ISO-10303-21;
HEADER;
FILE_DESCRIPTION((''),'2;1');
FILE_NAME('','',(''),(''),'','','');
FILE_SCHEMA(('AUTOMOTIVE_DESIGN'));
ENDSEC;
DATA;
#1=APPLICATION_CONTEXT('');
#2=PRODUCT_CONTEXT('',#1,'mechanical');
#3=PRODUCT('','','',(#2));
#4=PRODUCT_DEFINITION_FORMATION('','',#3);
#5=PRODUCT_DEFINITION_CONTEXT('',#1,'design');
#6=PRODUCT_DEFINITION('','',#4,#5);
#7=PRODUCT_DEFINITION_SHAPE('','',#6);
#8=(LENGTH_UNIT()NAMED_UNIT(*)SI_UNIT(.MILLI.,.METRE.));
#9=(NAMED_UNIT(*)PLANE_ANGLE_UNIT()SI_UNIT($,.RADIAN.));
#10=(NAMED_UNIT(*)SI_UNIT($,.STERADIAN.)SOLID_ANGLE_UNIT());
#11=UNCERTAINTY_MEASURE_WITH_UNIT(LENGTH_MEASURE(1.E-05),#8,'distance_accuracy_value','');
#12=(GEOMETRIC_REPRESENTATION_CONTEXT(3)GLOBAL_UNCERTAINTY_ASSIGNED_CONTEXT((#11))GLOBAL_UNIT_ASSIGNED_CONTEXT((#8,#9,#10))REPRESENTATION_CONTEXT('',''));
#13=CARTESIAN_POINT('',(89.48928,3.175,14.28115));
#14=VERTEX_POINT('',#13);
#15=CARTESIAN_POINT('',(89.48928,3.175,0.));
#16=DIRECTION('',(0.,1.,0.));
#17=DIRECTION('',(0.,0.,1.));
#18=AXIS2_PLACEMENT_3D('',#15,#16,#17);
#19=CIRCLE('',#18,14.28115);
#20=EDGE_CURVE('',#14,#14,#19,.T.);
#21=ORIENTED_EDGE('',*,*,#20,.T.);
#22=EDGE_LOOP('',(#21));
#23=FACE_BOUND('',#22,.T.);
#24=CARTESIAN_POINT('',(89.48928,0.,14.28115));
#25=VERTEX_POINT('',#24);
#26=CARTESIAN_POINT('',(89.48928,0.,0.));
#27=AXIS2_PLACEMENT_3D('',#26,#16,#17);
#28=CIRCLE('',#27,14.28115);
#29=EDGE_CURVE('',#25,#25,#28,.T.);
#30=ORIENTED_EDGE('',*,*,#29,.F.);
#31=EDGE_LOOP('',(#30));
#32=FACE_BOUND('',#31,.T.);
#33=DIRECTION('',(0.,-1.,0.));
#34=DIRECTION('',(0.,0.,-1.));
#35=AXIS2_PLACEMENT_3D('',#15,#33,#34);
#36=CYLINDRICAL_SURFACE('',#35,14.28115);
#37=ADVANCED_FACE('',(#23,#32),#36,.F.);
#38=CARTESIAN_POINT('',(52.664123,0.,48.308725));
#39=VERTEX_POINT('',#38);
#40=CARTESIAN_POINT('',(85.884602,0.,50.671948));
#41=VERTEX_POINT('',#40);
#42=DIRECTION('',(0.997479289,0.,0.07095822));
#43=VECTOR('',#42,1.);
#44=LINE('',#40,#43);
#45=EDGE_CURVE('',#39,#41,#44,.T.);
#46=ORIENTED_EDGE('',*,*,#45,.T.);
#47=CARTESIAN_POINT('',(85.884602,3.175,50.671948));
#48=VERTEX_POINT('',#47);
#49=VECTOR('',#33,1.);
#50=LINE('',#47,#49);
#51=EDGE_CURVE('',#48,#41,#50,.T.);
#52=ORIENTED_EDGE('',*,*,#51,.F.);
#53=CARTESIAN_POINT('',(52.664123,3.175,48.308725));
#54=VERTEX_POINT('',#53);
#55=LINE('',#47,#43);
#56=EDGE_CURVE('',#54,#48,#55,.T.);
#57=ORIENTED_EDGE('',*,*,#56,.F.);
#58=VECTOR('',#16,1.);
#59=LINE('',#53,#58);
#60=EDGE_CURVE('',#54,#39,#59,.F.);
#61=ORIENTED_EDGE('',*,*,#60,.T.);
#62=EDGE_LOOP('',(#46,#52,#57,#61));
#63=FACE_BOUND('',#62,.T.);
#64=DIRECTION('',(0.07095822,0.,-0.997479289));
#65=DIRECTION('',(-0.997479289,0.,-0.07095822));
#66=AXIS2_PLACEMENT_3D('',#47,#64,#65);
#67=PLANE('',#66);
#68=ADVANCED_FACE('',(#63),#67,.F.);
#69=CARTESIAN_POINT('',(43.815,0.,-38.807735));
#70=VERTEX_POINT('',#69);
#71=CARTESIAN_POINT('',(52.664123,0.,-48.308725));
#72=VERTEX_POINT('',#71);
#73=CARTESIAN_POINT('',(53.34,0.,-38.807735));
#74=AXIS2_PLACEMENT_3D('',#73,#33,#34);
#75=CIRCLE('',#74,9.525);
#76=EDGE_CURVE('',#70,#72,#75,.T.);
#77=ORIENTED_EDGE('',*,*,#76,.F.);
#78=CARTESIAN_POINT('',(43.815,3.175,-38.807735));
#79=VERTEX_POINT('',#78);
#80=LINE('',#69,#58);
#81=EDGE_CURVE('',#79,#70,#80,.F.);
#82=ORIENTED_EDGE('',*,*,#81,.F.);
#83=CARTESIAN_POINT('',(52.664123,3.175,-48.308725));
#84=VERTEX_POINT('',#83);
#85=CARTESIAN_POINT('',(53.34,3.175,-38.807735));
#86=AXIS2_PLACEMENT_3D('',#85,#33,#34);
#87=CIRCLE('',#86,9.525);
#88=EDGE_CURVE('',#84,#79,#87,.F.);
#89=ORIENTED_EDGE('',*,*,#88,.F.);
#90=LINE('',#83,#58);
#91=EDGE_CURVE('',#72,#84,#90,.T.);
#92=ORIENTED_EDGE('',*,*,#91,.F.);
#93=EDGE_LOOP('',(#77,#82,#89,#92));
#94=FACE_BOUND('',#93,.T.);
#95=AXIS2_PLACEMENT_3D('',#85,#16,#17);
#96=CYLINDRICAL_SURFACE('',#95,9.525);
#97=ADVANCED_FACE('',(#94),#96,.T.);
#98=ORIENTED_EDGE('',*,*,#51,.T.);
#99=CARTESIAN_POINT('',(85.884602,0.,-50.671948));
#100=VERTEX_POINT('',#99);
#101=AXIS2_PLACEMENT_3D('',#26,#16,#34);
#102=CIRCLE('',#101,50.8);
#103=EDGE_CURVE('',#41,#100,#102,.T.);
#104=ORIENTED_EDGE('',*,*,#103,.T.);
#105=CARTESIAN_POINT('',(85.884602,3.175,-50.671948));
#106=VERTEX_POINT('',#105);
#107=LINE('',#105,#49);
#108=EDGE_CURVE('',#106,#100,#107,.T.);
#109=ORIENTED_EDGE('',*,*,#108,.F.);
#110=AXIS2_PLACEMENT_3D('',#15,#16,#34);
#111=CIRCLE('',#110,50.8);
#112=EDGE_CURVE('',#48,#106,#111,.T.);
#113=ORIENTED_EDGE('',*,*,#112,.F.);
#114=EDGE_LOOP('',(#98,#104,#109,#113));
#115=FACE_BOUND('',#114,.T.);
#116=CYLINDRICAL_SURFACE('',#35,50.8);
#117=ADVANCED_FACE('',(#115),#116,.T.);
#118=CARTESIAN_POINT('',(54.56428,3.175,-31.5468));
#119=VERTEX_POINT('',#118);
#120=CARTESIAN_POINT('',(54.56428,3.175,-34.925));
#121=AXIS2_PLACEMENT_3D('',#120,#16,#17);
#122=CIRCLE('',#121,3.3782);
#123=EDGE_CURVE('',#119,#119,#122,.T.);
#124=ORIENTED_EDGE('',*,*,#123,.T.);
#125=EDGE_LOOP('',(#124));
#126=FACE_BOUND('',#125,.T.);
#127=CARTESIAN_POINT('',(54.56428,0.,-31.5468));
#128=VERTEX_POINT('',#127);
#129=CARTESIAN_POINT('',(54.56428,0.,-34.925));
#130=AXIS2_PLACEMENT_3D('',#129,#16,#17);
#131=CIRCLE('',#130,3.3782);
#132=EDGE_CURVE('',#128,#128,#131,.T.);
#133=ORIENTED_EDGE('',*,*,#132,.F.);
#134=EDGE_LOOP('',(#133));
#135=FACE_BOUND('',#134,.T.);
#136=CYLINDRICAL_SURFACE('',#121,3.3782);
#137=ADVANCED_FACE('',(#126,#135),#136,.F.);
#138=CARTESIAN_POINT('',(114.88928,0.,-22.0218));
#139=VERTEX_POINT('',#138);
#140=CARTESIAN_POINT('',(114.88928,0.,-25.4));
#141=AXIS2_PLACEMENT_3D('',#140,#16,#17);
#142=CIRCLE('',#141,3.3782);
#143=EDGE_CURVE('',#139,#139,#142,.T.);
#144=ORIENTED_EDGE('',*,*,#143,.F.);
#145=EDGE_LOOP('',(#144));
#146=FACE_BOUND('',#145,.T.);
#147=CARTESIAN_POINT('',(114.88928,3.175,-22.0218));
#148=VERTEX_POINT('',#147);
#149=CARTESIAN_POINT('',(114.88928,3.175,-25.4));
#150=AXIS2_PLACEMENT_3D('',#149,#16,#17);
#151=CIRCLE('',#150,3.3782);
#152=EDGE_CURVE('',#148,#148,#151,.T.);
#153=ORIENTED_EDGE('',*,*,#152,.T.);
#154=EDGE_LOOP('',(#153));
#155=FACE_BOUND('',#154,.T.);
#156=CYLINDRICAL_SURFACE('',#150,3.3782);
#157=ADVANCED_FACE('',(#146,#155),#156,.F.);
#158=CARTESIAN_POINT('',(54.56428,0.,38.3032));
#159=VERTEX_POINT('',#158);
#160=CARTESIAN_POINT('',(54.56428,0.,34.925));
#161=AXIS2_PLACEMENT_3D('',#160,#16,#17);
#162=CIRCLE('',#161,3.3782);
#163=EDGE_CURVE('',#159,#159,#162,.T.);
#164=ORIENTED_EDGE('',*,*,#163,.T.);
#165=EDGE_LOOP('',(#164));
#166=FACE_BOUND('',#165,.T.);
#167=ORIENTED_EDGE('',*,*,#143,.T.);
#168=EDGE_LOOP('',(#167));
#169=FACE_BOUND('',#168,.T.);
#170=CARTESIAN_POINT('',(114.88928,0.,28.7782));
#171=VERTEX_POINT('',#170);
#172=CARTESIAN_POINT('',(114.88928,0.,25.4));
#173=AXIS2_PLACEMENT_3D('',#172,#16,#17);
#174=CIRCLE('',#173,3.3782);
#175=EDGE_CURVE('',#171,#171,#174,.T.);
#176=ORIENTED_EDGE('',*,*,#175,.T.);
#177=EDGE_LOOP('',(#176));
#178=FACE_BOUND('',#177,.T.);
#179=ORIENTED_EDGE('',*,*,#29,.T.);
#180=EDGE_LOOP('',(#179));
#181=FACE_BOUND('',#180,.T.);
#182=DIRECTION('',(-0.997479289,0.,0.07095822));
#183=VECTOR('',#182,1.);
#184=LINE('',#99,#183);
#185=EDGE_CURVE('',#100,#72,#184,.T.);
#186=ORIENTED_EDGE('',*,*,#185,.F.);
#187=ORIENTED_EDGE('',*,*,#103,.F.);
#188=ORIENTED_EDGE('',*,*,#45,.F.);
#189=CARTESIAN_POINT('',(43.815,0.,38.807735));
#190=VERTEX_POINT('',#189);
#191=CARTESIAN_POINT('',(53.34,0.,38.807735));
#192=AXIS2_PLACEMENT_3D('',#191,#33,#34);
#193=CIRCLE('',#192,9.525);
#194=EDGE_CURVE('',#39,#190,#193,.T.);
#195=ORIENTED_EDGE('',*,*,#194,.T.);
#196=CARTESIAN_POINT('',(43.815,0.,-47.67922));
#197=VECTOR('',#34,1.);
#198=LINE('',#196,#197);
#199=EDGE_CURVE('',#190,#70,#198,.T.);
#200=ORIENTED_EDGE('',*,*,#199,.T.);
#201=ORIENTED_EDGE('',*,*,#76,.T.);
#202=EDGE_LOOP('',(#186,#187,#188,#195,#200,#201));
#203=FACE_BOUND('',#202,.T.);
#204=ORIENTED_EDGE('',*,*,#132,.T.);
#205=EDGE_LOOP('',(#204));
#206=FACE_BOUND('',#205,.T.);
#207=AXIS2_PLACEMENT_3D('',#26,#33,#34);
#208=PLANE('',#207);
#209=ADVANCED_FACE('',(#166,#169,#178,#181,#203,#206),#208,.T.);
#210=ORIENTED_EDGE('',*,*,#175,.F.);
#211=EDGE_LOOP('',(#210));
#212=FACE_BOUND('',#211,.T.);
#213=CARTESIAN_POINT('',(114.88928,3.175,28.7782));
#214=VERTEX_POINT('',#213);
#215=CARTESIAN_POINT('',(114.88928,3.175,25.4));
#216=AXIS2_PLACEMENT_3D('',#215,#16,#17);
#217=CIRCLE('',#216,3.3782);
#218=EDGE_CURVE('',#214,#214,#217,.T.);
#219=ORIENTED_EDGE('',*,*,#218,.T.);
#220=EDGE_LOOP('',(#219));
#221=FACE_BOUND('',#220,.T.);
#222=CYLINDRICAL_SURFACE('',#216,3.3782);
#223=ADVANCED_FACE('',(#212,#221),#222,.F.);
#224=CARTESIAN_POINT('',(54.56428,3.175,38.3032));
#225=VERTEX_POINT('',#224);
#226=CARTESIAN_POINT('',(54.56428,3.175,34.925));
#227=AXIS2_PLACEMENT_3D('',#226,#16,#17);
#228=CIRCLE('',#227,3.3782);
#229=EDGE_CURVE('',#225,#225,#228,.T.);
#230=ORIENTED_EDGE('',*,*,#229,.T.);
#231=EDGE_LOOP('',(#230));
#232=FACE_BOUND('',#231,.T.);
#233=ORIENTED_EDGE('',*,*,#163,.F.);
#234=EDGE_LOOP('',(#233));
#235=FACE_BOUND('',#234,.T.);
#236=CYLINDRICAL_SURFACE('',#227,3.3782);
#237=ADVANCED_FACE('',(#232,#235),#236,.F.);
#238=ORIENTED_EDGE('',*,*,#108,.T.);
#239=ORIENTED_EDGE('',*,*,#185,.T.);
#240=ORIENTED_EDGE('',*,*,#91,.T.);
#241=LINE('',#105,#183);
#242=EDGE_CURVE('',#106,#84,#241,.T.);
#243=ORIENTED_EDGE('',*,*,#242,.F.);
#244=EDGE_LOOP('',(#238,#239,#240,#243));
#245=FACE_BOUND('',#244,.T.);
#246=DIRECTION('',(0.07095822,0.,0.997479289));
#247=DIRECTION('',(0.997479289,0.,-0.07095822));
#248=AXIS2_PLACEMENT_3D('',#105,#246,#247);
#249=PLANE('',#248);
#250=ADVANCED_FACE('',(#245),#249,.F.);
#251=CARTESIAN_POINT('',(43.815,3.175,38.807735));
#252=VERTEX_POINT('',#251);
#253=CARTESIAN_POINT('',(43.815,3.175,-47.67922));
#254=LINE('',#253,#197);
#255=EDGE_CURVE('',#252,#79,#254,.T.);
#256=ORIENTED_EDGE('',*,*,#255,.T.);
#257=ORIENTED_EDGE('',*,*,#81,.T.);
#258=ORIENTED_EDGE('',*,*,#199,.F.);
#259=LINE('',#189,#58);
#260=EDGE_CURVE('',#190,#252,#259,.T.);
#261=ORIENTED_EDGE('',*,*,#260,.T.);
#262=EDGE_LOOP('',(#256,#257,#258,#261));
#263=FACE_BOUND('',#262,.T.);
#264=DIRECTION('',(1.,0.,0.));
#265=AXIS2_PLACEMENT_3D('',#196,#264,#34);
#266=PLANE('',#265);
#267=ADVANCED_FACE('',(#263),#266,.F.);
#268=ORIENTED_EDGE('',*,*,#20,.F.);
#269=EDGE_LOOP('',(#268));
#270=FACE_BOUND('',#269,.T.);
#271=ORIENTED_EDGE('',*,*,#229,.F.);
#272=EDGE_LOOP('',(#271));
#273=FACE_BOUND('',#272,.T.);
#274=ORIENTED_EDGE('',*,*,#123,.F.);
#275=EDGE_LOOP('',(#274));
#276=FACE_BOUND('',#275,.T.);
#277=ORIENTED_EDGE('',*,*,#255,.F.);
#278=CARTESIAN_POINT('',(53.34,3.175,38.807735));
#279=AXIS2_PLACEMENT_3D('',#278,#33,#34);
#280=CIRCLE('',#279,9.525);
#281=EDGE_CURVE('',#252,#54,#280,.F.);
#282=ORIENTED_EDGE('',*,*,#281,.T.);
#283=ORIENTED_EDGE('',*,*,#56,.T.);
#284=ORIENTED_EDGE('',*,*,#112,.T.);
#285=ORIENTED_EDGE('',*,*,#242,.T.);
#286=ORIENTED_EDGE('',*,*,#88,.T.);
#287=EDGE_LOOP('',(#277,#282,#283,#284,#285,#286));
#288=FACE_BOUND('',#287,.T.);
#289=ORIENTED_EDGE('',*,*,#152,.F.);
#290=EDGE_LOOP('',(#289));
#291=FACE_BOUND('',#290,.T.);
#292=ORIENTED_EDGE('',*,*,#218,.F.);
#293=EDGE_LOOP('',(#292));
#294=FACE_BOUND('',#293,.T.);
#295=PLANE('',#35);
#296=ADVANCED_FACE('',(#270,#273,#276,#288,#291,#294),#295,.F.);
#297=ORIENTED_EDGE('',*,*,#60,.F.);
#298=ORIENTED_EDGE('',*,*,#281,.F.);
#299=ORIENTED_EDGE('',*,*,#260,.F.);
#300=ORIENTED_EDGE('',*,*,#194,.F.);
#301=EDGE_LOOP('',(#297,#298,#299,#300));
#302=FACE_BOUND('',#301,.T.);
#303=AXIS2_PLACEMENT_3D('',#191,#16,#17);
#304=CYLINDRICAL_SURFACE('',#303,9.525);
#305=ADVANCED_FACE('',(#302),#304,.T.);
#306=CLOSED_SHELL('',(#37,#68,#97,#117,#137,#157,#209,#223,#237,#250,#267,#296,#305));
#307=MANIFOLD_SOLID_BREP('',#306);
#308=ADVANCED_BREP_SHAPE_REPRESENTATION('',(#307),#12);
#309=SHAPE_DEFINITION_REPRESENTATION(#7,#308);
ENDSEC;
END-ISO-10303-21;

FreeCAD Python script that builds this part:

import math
import FreeCAD as App
import Part
import Sketcher

V = App.Vector
Q = App.Units.Quantity


def edges_at(feature, points):
    """Names of the edges that pass closest to the given points."""
    edges = feature.Shape.Edges
    near = lambda p: min(range(len(edges)), key=lambda i: edges[i].distToShape(Part.Vertex(*p))[0])
    return sorted({f"Edge{near(p) + 1}" for p in points})

doc = App.newDocument("Part")
params = doc.addObject("Spreadsheet::Sheet", "Params")
for row, (alias, value) in enumerate([
    ("sketch1_radius", "2 in"),
    ("sketch1_diameter", "1.51 in"),
    ("sketch1_radius2", "1.75 in"),
    ("pad1_length", "0.125 in"),
    ("sketch2_diameter", "0.201 in"),
    ("hole_diameter", "0.201 in"),
    ("sketch3_diameter", "0.266 in"),
    ("hole2_diameter", "0.266 in"),
    ("sketch4_radius", "0.2 in"),
    ("sketch4_diameter", "0.201 in"),
    ("sketch4_radius2", "0.755 in"),
    ("fillet_radius", "0.3 in"),
    ("fillet2_radius", "0.375 in"),
], start=1):
    params.set(f"A{row}", alias)
    params.set(f"B{row}", "=" + value)
    params.setAlias(f"B{row}", alias)

body = doc.addObject("PartDesign::Body", "Body")

sketch1 = body.newObject("Sketcher::SketchObject", "Sketch")
sketch1.AttachmentSupport = (doc.getObject("XZ_Plane"), [""])
sketch1.MapMode = "FlatFace"
sketch1.addGeometry(Part.LineSegment(V(86, -51, 0), V(-3, -44, 0)), False)
sketch1.addGeometry(Part.ArcOfCircle(Part.Circle(V(0, 0, 0), V(0, 0, 1), 44), math.radians(94), math.radians(266)), False)
sketch1.addGeometry(Part.LineSegment(V(-3, 44, 0), V(86, 51, 0)), False)
sketch1.addGeometry(Part.ArcOfCircle(Part.Circle(V(89, 0, 0), V(0, 0, 1), 51), math.radians(-94), math.radians(94)), False)
sketch1.addGeometry(Part.Circle(V(0, 0, 0), V(0, 0, 1), 19), False)
sketch1.addGeometry(Part.Circle(V(89, 0, 0), V(0, 0, 1), 14), False)
sketch1.addConstraint(Sketcher.Constraint("Tangent", 0, 2, 1, 2))
sketch1.addConstraint(Sketcher.Constraint("Tangent", 1, 1, 2, 1))
sketch1.addConstraint(Sketcher.Constraint("Tangent", 2, 2, 3, 2))
sketch1.addConstraint(Sketcher.Constraint("Tangent", 3, 1, 0, 1))
sketch1.addConstraint(Sketcher.Constraint("Coincident", 1, 3, -1, 1))
sketch1.addConstraint(Sketcher.Constraint("Coincident", 4, 3, -1, 1))
sketch1.addConstraint(Sketcher.Constraint("Coincident", 5, 3, 3, 3))
sketch1.addConstraint(Sketcher.Constraint("PointOnObject", 3, 3, -1))
sketch1.addConstraint(Sketcher.Constraint("Radius", 3, Q("2 in")))
sketch1.addConstraint(Sketcher.Constraint("Diameter", 4, Q("1.51 in")))
sketch1.addConstraint(Sketcher.Constraint("Radius", 1, Q("1.75 in")))
sketch1.addConstraint(Sketcher.Constraint("Diameter", 5, Q("1.1245 in")))
sketch1.addConstraint(Sketcher.Constraint("DistanceX", -1, 1, 3, 3, Q("3.5232 in")))
sketch1.setExpression("Constraints[8]", "Params.sketch1_radius")
sketch1.setExpression("Constraints[9]", "Params.sketch1_diameter")
sketch1.setExpression("Constraints[10]", "Params.sketch1_radius2")
pad1 = body.newObject("PartDesign::Pad", "Pad")
pad1.Profile = sketch1
pad1.setExpression("Length", "Params.pad1_length")
pad1.Reversed = True

sketch2 = body.newObject("Sketcher::SketchObject", "Sketch001")
sketch2.AttachmentSupport = (doc.getObject("XZ_Plane"), [""])
sketch2.MapMode = "FlatFace"
sketch2.AttachmentOffset = App.Placement(V(0, 0, -0.125 * 25.4), App.Rotation())
sketch2.addGeometry(Part.Circle(V(-18, -18, 0), V(0, 0, 1), 2.6), False)
sketch2.addGeometry(Part.Circle(V(18, -18, 0), V(0, 0, 1), 2.6), False)
sketch2.addGeometry(Part.Circle(V(18, 18, 0), V(0, 0, 1), 2.6), False)
sketch2.addGeometry(Part.Circle(V(-18, 18, 0), V(0, 0, 1), 2.6), False)
sketch2.addGeometry(Part.Circle(V(-31.8, 0, 0), V(0, 0, 1), 2.6), False)
sketch2.addGeometry(Part.Circle(V(34.9, -34.3, 0), V(0, 0, 1), 2.6), False)
sketch2.addGeometry(Part.Circle(V(34.9, 34.3, 0), V(0, 0, 1), 2.6), False)
sketch2.addConstraint(Sketcher.Constraint("Equal", 0, 1))
sketch2.addConstraint(Sketcher.Constraint("Equal", 1, 2))
sketch2.addConstraint(Sketcher.Constraint("Equal", 2, 3))
sketch2.addConstraint(Sketcher.Constraint("Equal", 3, 4))
sketch2.addConstraint(Sketcher.Constraint("Equal", 4, 5))
sketch2.addConstraint(Sketcher.Constraint("Equal", 5, 6))
sketch2.addConstraint(Sketcher.Constraint("Symmetric", 0, 3, 2, 3, -1, 1))
sketch2.addConstraint(Sketcher.Constraint("Symmetric", 1, 3, 3, 3, -1, 1))
sketch2.addConstraint(Sketcher.Constraint("Symmetric", 0, 3, 1, 3, -2))
sketch2.addConstraint(Sketcher.Constraint("Symmetric", 5, 3, 6, 3, -1))
sketch2.addConstraint(Sketcher.Constraint("PointOnObject", 4, 3, -1))
sketch2.addConstraint(Sketcher.Constraint("Diameter", 0, Q("0.201 in")))
sketch2.addConstraint(Sketcher.Constraint("DistanceX", -1, 1, 5, 3, Q("1.375 in")))
sketch2.addConstraint(Sketcher.Constraint("DistanceX", 4, 3, -1, 1, Q("1.2525 in")))
sketch2.addConstraint(Sketcher.Constraint("DistanceY", 5, 3, 1, 3, 16.354201))
sketch2.addConstraint(Sketcher.Constraint("DistanceX", 0, 3, -1, 1, 17.960512))
sketch2.addConstraint(Sketcher.Constraint("DistanceY", 0, 3, -1, 1, 17.960512))
sketch2.setExpression("Constraints[11]", "Params.sketch2_diameter")
doc.recompute()
hole = body.newObject("PartDesign::Hole", "Hole")
hole.Profile = sketch2
hole.ThreadType = "None"
hole.setExpression("Diameter", "Params.hole_diameter")
hole.DepthType = "ThroughAll"
hole.Reversed = True

sketch3 = body.newObject("Sketcher::SketchObject", "Sketch002")
sketch3.AttachmentSupport = (doc.getObject("XZ_Plane"), [""])
sketch3.MapMode = "FlatFace"
sketch3.AttachmentOffset = App.Placement(V(0, 0, -0.125 * 25.4), App.Rotation())
sketch3.addGeometry(Part.Circle(V(54.6, -34.9, 0), V(0, 0, 1), 3.4), False)
sketch3.addGeometry(Part.Circle(V(54.6, 34.9, 0), V(0, 0, 1), 3.4), False)
sketch3.addGeometry(Part.Circle(V(114.9, -25.4, 0), V(0, 0, 1), 3.4), False)
sketch3.addGeometry(Part.Circle(V(114.9, 25.4, 0), V(0, 0, 1), 3.4), False)
sketch3.addConstraint(Sketcher.Constraint("Equal", 0, 1))
sketch3.addConstraint(Sketcher.Constraint("Equal", 1, 2))
sketch3.addConstraint(Sketcher.Constraint("Equal", 2, 3))
sketch3.addConstraint(Sketcher.Constraint("Symmetric", 0, 3, 1, 3, -1))
sketch3.addConstraint(Sketcher.Constraint("Symmetric", 2, 3, 3, 3, -1))
sketch3.addConstraint(Sketcher.Constraint("Diameter", 0, Q("0.266 in")))
sketch3.addConstraint(Sketcher.Constraint("DistanceY", 2, 3, -1, 1, Q("1 in")))
sketch3.addConstraint(Sketcher.Constraint("DistanceY", 0, 3, 1, 3, Q("2.75 in")))
sketch3.addConstraint(Sketcher.Constraint("DistanceX", 0, 3, 2, 3, Q("2.375 in")))
sketch3.addConstraint(Sketcher.Constraint("DistanceX", -1, 1, 0, 3, Q("2.1482 in")))
sketch3.setExpression("Constraints[5]", "Params.sketch3_diameter")
doc.recompute()
hole2 = body.newObject("PartDesign::Hole", "Hole001")
hole2.Profile = sketch3
hole2.ThreadType = "None"
hole2.setExpression("Diameter", "Params.hole2_diameter")
hole2.DepthType = "ThroughAll"
hole2.Reversed = True

sketch4 = body.newObject("Sketcher::SketchObject", "Sketch003")
sketch4.AttachmentSupport = (doc.getObject("XZ_Plane"), [""])
sketch4.MapMode = "FlatFace"
sketch4.AttachmentOffset = App.Placement(V(0, 0, -0.125 * 25.4), App.Rotation())
sketch4.addGeometry(Part.LineSegment(V(-9.5, -16.7, 0), V(-14.4, -21.6, 0)), False)
sketch4.addGeometry(Part.ArcOfCircle(Part.Circle(V(-18, -18, 0), V(0, 0, 1), 5.1), math.radians(135), math.radians(315)), False)
sketch4.addGeometry(Part.LineSegment(V(-21.6, -14.4, 0), V(-16.7, -9.5, 0)), False)
sketch4.addGeometry(Part.ArcOfCircle(Part.Circle(V(0, 0, 0), V(0, 0, 1), 19.2), math.radians(-150), math.radians(-120)), False)
sketch4.addGeometry(Part.Circle(V(-18, -18, 0), V(0, 0, 1), 2.6), False)
sketch4.addGeometry(Part.ArcOfCircle(Part.Circle(V(0, 0, 0), V(0, 0, 1), 19.2), math.radians(30), math.radians(60)), False)
sketch4.addGeometry(Part.LineSegment(V(9.5, 16.7, 0), V(14.4, 21.6, 0)), False)
sketch4.addGeometry(Part.ArcOfCircle(Part.Circle(V(18, 18, 0), V(0, 0, 1), 5.1), math.radians(-45), math.radians(135)), False)
sketch4.addGeometry(Part.LineSegment(V(21.6, 14.4, 0), V(16.7, 9.5, 0)), False)
sketch4.addGeometry(Part.Circle(V(18, 18, 0), V(0, 0, 1), 2.6), False)
sketch4.addConstraint(Sketcher.Constraint("Tangent", 0, 2, 1, 2))
sketch4.addConstraint(Sketcher.Constraint("Tangent", 1, 1, 2, 1))
sketch4.addConstraint(Sketcher.Constraint("Coincident", 2, 2, 3, 1))
sketch4.addConstraint(Sketcher.Constraint("Coincident", 3, 2, 0, 1))
sketch4.addConstraint(Sketcher.Constraint("Coincident", 5, 2, 6, 1))
sketch4.addConstraint(Sketcher.Constraint("Tangent", 6, 2, 7, 2))
sketch4.addConstraint(Sketcher.Constraint("Tangent", 7, 1, 8, 1))
sketch4.addConstraint(Sketcher.Constraint("Coincident", 8, 2, 5, 1))
sketch4.addConstraint(Sketcher.Constraint("Coincident", 3, 3, -1, 1))
sketch4.addConstraint(Sketcher.Constraint("Coincident", 5, 3, -1, 1))
sketch4.addConstraint(Sketcher.Constraint("Coincident", 4, 3, 1, 3))
sketch4.addConstraint(Sketcher.Constraint("Coincident", 9, 3, 7, 3))
sketch4.addConstraint(Sketcher.Constraint("Equal", 3, 5))
sketch4.addConstraint(Sketcher.Constraint("Equal", 1, 7))
sketch4.addConstraint(Sketcher.Constraint("Equal", 4, 9))
sketch4.addConstraint(Sketcher.Constraint("Symmetric", 1, 3, 7, 3, -1, 1))
sketch4.addConstraint(Sketcher.Constraint("Parallel", 0, 2))
sketch4.addConstraint(Sketcher.Constraint("Parallel", 2, 6))
sketch4.addConstraint(Sketcher.Constraint("Parallel", 6, 8))
sketch4.addConstraint(Sketcher.Constraint("Equal", 0, 2))
sketch4.addConstraint(Sketcher.Constraint("Radius", 1, Q("0.2 in")))
sketch4.addConstraint(Sketcher.Constraint("Diameter", 4, Q("0.201 in")))
sketch4.addConstraint(Sketcher.Constraint("Angle", 0, Q("-135 deg")))
sketch4.addConstraint(Sketcher.Constraint("Radius", 3, Q("0.755 in")))
sketch4.addConstraint(Sketcher.Constraint("DistanceX", 0, 2, -1, 1, 14.36841))
sketch4.setExpression("Constraints[20]", "Params.sketch4_radius")
sketch4.setExpression("Constraints[21]", "Params.sketch4_diameter")
sketch4.setExpression("Constraints[23]", "Params.sketch4_radius2")
pocket1 = body.newObject("PartDesign::Pocket", "Pocket")
pocket1.Profile = sketch4
pocket1.Type = "ThroughAll"
pocket1.Reversed = True
doc.recompute()

fillet = body.newObject("PartDesign::Fillet", "Fillet")
fillet.Base = (pocket1, edges_at(pocket1, [
    (9.484, 1.587, 16.668),
    (16.668, 1.587, 9.484),
    (-9.484, 1.587, -16.668),
    (-16.668, 1.587, -9.484),
]))
fillet.setExpression("Radius", "Params.fillet_radius")

sketch5 = body.newObject("Sketcher::SketchObject", "Sketch004")
sketch5.AttachmentSupport = (doc.getObject("XZ_Plane"), [""])
sketch5.MapMode = "FlatFace"
sketch5.AttachmentOffset = App.Placement(V(0, 0, -0.125 * 25.4), App.Rotation())
sketch5.addGeometry(Part.LineSegment(V(44, 48, 0), V(44, -48, 0)), False)
sketch5.addGeometry(Part.LineSegment(V(44, -48, 0), V(-626, 0, 0)), False)
sketch5.addGeometry(Part.LineSegment(V(-626, 0, 0), V(44, 48, 0)), False)
sketch5.addConstraint(Sketcher.Constraint("Coincident", 0, 2, 1, 1))
sketch5.addConstraint(Sketcher.Constraint("Coincident", 1, 2, 2, 1))
sketch5.addConstraint(Sketcher.Constraint("Coincident", 2, 2, 0, 1))
sketch5.addConstraint(Sketcher.Constraint("Vertical", 0))
sketch5.addConstraint(Sketcher.Constraint("PointOnObject", 1, 2, -1))
sketch5.addConstraint(Sketcher.Constraint("Equal", 1, 2))
sketch5.addConstraint(Sketcher.Constraint("DistanceX", -1, 1, 0, 2, Q("1.725 in")))
sketch5.addConstraint(Sketcher.Constraint("DistanceX", 1, 2, -1, 1, Q("24.6624 in")))
sketch5.addConstraint(Sketcher.Constraint("DistanceY", 0, 2, 0, 1, 95.35844))
pocket2 = body.newObject("PartDesign::Pocket", "Pocket001")
pocket2.Profile = sketch5
pocket2.Type = "ThroughAll"
pocket2.Reversed = True
doc.recompute()

fillet2 = body.newObject("PartDesign::Fillet", "Fillet001")
fillet2.Base = (pocket2, edges_at(pocket2, [(43.815, 1.587, 47.679), (43.815, 1.587, -47.679)]))
fillet2.setExpression("Radius", "Params.fillet2_radius")

doc.recompute()
